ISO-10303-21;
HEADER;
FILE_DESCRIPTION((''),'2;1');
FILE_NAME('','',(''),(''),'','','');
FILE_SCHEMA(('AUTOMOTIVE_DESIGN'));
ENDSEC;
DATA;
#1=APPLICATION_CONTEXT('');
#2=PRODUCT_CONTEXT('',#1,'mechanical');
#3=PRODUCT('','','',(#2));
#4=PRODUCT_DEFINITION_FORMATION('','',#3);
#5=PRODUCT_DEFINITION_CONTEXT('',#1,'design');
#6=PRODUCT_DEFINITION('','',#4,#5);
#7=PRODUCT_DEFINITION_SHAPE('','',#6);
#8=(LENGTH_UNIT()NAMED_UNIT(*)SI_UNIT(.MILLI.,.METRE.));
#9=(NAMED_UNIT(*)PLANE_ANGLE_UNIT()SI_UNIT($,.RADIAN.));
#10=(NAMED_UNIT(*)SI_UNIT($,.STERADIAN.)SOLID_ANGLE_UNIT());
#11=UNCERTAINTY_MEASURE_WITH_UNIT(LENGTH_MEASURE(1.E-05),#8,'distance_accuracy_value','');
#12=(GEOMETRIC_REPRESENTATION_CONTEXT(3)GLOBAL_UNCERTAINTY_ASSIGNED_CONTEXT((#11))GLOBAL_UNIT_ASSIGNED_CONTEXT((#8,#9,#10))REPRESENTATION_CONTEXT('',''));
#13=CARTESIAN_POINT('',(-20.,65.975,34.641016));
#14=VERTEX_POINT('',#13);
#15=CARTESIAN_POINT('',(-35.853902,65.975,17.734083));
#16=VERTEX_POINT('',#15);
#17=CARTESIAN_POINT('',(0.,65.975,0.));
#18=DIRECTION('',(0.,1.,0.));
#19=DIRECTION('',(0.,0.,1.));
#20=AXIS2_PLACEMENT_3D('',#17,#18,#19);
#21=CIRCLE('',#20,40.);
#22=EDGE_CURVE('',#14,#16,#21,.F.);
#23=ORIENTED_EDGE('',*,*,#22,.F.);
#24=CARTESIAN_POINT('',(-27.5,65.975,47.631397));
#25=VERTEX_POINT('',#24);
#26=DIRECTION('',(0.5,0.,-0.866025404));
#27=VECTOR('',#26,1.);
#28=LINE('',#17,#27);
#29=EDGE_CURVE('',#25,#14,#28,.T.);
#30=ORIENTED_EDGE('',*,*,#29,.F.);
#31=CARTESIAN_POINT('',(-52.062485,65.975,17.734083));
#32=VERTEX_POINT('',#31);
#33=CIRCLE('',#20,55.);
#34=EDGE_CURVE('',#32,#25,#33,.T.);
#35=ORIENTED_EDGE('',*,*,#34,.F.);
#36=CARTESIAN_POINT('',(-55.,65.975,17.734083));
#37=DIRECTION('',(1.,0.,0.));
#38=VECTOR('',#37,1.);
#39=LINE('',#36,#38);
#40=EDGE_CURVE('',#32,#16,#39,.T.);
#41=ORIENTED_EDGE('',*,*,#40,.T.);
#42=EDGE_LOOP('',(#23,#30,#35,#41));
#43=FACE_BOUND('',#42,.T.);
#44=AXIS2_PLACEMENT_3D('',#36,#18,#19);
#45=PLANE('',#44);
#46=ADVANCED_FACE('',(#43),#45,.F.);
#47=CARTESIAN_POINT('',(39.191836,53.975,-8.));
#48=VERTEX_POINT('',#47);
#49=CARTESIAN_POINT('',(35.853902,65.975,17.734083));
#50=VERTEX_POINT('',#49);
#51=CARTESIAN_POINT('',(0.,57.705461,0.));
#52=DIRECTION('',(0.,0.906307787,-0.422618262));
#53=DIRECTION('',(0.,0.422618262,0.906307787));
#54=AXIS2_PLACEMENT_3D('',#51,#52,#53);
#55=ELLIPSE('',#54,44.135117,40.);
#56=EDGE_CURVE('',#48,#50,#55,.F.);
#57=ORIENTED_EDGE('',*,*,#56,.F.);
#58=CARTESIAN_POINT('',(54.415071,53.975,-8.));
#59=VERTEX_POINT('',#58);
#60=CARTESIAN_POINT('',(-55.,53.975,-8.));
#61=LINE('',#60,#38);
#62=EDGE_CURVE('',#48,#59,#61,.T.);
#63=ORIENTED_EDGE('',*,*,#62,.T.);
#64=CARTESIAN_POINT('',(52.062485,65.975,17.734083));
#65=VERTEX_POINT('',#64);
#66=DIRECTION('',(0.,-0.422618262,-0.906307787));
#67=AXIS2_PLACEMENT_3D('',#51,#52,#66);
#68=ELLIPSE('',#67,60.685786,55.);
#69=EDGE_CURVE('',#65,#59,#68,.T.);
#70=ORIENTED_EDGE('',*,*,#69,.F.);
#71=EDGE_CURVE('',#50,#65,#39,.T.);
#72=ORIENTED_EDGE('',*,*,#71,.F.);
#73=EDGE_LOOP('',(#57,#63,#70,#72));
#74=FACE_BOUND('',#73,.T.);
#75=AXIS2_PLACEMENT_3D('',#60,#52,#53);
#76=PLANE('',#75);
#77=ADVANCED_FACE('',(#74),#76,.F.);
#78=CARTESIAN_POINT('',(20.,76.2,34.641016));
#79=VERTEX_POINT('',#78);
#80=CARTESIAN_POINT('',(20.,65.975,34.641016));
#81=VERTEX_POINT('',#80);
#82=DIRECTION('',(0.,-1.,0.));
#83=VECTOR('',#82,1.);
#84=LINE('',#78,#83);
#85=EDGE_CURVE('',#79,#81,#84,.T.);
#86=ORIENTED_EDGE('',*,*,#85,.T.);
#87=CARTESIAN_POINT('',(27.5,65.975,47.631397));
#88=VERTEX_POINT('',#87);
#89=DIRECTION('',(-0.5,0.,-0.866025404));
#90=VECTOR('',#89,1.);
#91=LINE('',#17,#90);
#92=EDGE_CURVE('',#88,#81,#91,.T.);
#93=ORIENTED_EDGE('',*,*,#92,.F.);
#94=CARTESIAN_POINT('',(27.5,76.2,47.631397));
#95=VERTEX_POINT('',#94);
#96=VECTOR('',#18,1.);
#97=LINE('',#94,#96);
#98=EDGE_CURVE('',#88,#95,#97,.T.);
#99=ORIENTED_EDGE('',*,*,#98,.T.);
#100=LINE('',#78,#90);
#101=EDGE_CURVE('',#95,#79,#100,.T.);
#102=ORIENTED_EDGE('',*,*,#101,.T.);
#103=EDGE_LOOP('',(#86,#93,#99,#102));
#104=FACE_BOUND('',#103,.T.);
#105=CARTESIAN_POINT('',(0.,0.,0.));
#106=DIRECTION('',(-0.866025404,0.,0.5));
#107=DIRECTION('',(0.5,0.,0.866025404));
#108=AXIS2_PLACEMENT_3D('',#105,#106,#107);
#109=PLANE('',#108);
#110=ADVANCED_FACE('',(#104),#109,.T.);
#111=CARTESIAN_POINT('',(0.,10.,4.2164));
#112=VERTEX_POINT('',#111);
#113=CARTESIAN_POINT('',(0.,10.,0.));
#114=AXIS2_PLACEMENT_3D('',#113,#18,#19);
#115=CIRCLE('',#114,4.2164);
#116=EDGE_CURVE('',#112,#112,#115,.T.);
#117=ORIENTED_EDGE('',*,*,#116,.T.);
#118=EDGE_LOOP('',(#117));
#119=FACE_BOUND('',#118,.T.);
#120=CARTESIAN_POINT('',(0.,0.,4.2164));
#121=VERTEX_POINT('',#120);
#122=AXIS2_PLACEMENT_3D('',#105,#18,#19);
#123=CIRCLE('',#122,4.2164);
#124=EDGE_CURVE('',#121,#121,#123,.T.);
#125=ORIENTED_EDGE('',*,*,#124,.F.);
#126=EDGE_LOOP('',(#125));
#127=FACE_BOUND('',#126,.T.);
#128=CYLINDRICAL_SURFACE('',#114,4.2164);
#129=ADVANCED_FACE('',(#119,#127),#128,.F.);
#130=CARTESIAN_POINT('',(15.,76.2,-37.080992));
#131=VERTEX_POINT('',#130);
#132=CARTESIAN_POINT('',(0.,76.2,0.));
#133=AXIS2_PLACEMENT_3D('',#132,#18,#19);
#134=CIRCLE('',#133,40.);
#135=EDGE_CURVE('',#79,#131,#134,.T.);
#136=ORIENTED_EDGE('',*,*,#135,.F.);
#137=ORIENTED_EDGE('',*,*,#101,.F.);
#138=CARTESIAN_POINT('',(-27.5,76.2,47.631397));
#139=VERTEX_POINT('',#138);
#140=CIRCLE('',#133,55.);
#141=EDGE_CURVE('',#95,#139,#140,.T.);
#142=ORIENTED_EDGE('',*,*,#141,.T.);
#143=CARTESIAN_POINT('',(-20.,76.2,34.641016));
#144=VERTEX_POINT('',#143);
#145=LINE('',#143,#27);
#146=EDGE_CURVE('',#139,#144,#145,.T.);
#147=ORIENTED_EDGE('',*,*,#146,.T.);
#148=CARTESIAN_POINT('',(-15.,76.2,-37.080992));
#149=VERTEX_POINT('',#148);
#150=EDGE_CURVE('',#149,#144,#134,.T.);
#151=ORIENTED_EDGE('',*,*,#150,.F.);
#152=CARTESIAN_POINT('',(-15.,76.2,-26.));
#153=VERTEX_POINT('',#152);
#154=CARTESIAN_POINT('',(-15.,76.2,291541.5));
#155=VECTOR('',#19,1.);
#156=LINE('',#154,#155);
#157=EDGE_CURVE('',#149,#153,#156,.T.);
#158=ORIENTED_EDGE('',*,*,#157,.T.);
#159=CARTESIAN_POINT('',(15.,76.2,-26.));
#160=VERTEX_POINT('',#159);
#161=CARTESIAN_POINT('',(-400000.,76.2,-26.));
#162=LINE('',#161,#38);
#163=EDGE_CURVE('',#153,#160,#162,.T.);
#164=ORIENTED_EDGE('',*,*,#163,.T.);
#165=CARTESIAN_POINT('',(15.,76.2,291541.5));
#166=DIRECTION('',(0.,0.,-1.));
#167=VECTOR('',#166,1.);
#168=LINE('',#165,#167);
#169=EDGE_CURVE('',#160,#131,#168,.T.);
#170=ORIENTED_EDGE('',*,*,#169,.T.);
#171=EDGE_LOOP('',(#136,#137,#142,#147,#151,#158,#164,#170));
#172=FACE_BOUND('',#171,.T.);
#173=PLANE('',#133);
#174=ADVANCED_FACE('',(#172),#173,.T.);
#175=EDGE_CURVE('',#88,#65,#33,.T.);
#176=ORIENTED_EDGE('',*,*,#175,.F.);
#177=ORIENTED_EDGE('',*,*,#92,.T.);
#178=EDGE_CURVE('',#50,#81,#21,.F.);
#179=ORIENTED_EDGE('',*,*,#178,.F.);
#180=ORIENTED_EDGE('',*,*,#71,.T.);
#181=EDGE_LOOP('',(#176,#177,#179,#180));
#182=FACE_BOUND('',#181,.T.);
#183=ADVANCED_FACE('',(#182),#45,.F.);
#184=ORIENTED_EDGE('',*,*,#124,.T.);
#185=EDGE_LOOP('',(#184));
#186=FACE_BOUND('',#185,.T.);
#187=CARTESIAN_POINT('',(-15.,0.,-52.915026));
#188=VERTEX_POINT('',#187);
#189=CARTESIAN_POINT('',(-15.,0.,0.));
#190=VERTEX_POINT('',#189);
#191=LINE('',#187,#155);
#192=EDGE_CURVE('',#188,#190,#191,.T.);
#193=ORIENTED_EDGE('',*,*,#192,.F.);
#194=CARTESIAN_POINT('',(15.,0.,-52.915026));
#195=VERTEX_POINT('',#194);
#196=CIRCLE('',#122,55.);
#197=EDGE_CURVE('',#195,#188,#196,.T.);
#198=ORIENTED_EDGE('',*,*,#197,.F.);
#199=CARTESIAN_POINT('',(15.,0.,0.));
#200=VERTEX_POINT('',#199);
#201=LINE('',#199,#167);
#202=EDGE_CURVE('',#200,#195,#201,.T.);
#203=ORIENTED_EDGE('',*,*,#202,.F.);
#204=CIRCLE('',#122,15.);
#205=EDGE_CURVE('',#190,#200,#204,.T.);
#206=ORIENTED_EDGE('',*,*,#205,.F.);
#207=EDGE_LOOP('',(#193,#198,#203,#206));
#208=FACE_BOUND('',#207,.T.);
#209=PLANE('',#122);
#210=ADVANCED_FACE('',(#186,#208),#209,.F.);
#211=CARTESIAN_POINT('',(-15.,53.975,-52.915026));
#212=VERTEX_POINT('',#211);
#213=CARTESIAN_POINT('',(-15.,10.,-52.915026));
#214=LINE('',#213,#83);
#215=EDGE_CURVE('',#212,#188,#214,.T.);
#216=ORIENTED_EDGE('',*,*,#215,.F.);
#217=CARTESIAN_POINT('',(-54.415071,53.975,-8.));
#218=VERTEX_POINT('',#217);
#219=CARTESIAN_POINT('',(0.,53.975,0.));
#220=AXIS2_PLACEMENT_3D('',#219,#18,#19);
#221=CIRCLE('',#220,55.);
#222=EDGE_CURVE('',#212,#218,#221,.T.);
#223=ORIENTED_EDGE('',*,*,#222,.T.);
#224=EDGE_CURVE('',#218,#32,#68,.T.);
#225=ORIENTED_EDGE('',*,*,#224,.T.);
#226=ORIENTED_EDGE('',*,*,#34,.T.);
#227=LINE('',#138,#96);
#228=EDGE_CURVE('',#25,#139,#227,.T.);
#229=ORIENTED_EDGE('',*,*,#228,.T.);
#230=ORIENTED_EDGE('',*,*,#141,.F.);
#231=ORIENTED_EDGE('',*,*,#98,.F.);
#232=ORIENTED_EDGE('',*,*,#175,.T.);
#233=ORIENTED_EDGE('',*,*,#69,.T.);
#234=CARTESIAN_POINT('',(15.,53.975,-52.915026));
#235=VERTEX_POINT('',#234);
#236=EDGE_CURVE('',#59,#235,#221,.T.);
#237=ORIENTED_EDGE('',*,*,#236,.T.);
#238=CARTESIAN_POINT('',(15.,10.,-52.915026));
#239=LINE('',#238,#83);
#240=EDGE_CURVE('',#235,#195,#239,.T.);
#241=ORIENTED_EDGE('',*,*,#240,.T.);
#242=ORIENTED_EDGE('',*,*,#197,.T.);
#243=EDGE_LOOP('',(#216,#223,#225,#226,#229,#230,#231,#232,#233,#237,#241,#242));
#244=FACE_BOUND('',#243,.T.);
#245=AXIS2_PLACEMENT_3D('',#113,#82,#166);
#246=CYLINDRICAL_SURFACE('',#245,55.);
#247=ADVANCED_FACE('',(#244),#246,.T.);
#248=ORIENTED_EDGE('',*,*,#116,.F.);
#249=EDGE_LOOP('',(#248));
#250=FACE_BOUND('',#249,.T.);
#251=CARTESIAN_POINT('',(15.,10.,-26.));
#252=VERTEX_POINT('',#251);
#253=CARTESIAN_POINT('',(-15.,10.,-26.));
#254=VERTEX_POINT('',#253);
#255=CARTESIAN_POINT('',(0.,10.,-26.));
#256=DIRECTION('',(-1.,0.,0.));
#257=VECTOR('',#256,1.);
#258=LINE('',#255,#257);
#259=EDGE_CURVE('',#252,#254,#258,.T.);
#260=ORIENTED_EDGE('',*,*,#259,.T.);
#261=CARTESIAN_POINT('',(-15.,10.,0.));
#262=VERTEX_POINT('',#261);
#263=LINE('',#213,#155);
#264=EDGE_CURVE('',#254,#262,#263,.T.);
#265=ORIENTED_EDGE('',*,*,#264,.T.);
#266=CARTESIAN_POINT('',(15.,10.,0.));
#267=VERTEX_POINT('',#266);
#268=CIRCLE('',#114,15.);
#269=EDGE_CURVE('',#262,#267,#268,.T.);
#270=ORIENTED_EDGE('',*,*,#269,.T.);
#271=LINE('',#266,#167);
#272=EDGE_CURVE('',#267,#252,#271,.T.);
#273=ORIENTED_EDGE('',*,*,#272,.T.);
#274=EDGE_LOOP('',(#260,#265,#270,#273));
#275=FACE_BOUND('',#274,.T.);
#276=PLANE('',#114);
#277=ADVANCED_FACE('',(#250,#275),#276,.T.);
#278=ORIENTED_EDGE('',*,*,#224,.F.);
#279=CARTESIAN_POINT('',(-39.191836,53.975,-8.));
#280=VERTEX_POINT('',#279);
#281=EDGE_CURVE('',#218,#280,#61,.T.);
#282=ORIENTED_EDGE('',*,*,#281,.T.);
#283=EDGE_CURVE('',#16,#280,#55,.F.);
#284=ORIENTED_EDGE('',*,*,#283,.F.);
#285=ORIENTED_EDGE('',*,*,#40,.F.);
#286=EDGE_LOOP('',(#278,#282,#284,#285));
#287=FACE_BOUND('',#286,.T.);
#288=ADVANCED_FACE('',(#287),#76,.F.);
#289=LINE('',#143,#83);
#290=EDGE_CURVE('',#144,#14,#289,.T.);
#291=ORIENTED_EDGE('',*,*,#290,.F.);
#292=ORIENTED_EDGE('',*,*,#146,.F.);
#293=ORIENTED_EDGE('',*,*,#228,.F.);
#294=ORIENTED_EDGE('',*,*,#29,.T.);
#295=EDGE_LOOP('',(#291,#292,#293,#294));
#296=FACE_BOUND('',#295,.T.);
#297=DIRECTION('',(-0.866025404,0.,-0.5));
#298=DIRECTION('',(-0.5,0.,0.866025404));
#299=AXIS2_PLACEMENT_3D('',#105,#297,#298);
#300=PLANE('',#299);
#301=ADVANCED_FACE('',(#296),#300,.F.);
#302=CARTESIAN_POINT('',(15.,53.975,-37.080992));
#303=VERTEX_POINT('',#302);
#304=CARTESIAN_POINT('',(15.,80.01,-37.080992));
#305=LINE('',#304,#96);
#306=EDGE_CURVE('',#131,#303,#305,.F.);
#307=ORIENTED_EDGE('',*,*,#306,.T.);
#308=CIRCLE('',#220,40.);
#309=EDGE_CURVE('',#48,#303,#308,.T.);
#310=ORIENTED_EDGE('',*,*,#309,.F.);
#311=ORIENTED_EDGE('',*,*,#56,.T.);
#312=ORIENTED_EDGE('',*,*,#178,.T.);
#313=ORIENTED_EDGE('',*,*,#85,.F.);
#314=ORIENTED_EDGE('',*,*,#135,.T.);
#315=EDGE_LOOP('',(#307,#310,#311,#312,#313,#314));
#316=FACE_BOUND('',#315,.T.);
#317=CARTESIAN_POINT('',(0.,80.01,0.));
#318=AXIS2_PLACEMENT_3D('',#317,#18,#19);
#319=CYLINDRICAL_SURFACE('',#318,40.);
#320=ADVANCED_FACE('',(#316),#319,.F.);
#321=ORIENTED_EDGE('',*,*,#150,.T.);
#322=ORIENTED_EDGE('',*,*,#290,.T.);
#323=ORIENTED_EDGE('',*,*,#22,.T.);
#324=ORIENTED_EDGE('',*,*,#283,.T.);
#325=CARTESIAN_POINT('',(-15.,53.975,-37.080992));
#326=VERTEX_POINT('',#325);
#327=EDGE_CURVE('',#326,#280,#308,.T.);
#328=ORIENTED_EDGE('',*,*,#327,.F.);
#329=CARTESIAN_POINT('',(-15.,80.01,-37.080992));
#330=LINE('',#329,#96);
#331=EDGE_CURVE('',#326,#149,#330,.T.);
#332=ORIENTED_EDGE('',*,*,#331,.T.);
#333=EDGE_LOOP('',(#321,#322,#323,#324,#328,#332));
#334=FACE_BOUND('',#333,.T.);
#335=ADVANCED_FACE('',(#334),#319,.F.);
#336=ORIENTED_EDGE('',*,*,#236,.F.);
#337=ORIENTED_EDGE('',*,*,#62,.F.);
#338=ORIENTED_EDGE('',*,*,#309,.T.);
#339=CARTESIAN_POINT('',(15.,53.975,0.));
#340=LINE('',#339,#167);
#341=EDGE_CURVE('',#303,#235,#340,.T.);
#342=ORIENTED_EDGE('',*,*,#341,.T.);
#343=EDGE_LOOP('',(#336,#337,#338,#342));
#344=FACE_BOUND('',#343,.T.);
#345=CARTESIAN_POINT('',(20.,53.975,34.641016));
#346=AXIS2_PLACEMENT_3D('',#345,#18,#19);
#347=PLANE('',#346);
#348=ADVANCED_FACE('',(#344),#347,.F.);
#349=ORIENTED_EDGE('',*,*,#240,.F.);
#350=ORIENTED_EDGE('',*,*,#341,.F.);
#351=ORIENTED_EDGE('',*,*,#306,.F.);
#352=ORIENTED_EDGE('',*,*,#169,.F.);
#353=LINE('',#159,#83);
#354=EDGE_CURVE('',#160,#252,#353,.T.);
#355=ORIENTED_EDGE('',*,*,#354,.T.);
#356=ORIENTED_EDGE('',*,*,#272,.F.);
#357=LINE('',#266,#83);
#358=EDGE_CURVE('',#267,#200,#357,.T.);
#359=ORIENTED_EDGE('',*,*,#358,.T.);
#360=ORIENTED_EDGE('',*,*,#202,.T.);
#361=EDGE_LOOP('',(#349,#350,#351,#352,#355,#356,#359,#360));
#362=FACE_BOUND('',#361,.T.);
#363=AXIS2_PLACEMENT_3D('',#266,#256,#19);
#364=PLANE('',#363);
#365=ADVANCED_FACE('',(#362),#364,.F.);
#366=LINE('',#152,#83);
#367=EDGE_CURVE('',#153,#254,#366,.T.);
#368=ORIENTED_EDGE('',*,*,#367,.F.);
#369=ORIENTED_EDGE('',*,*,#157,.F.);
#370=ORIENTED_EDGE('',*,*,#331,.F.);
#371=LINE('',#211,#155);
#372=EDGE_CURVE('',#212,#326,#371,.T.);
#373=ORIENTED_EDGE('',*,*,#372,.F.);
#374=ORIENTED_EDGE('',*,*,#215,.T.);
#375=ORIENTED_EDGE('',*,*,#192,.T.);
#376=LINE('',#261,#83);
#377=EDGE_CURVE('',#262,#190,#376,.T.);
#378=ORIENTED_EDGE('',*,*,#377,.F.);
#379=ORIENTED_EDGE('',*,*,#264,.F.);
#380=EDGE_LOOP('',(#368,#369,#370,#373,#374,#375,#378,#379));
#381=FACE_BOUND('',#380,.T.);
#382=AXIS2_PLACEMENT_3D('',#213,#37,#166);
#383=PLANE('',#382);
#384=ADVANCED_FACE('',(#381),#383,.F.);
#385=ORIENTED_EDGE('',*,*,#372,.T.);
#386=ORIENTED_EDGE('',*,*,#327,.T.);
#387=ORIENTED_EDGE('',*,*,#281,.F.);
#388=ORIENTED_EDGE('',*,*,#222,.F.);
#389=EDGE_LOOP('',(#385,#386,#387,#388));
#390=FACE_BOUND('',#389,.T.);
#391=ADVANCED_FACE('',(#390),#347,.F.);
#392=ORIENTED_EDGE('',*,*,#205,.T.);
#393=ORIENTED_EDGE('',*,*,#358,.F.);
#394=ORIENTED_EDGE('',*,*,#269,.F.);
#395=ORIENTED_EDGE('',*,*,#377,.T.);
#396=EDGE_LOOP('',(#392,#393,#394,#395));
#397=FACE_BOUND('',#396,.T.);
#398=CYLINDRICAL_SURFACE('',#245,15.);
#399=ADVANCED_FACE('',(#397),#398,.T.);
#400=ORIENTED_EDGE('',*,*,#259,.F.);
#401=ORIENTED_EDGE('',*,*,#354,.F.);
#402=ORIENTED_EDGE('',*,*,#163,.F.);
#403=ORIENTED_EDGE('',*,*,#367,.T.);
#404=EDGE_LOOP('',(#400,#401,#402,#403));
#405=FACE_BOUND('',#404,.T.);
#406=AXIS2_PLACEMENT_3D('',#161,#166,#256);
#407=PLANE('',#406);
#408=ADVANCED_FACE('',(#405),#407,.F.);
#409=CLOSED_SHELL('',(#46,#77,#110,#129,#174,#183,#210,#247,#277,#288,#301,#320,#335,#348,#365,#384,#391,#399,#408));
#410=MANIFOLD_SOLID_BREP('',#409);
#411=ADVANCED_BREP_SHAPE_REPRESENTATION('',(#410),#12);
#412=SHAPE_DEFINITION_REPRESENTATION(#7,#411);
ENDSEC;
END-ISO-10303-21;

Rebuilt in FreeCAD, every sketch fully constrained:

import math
import FreeCAD as App
import Part
import Sketcher
Q = App.Units.Quantity


def add_polygon(sketch, points):
    """Adds a closed chain of lines whose ends are joined by coincident constraints."""
    first, n = sketch.GeometryCount, len(points)
    for a, b in zip(points, points[1:] + points[:1]):
        sketch.addGeometry(Part.LineSegment(App.Vector(*a, 0), App.Vector(*b, 0)), False)
    for i in range(n):
        sketch.addConstraint(Sketcher.Constraint("Coincident", first + i, 2, first + (i + 1) % n, 1))

doc = App.newDocument("Part")
body = doc.addObject("PartDesign::Body", "Body")

sketch1 = doc.addObject("Sketcher::SketchObject", "Sketch")
body.addObject(sketch1)
sketch1.AttachmentSupport = (doc.XZ_Plane, [""])
sketch1.MapMode = "FlatFace"
sketch1.addGeometry([
    Part.LineSegment(App.Vector(15, 0, 0), App.Vector(15, -53, 0)),
    Part.ArcOfCircle(Part.Circle(App.Vector(0, 0, 0), App.Vector(0, 0, 1), 55), math.radians(-106), math.radians(-74)),
    Part.LineSegment(App.Vector(-15, -53, 0), App.Vector(-15, 0, 0)),
    Part.ArcOfCircle(Part.Circle(App.Vector(0, 0, 0), App.Vector(0, 0, 1), 15), math.radians(0), math.radians(180)),
], False)
sketch1.addConstraint([
    Sketcher.Constraint("Coincident", 0, 2, 1, 2),
    Sketcher.Constraint("Coincident", 1, 1, 2, 1),
    Sketcher.Constraint("Tangent", 2, 2, 3, 2),
    Sketcher.Constraint("Tangent", 3, 1, 0, 1),
    Sketcher.Constraint("Vertical", 0),
    Sketcher.Constraint("Vertical", 2),
    Sketcher.Constraint("Coincident", 1, 3, -1, 1),
    Sketcher.Constraint("Coincident", 3, 3, -1, 1),
    Sketcher.Constraint("Radius", 1, Q("55 mm")),
    Sketcher.Constraint("Radius", 3, Q("15 mm")),
])
pad1 = doc.addObject("PartDesign::Pad", "Pad")
body.addObject(pad1)
pad1.Profile = sketch1
pad1.Length = 10
pad1.Reversed = True

sketch2 = doc.addObject("Sketcher::SketchObject", "Sketch001")
body.addObject(sketch2)
sketch2.AttachmentSupport = (doc.XZ_Plane, [""])
sketch2.MapMode = "FlatFace"
sketch2.addGeometry([
    Part.LineSegment(App.Vector(-15, -26, 0), App.Vector(15, -26, 0)),
    Part.LineSegment(App.Vector(15, -26, 0), App.Vector(15, -53, 0)),
    Part.ArcOfCircle(Part.Circle(App.Vector(0, 0, 0), App.Vector(0, 0, 1), 55), math.radians(-106), math.radians(-74)),
    Part.LineSegment(App.Vector(-15, -53, 0), App.Vector(-15, -26, 0)),
], False)
sketch2.addConstraint([
    Sketcher.Constraint("Coincident", 0, 2, 1, 1),
    Sketcher.Constraint("Coincident", 1, 2, 2, 2),
    Sketcher.Constraint("Coincident", 2, 1, 3, 1),
    Sketcher.Constraint("Coincident", 3, 2, 0, 1),
    Sketcher.Constraint("Horizontal", 0),
    Sketcher.Constraint("Vertical", 1),
    Sketcher.Constraint("Vertical", 3),
    Sketcher.Constraint("Coincident", 2, 3, -1, 1),
    Sketcher.Constraint("Horizontal", 1, 2, 2, 1),
    Sketcher.Constraint("Radius", 2, Q("55 mm")),
    Sketcher.Constraint("DistanceX", 0, 1, 0, 2, Q("30 mm")),
    Sketcher.Constraint("DistanceY", 0, 2, -1, 1, Q("26 mm")),
])
pad2 = doc.addObject("PartDesign::Pad", "Pad001")
body.addObject(pad2)
pad2.Profile = sketch2
pad2.Length = 76.2
pad2.Reversed = True

sketch3 = doc.addObject("Sketcher::SketchObject", "Sketch002")
body.addObject(sketch3)
sketch3.AttachmentSupport = (doc.YZ_Plane, [""])
sketch3.MapMode = "FlatFace"
add_polygon(sketch3, [(76, -40), (54, -40), (54, -55), (76, -55)])
sketch3.addConstraint([
    Sketcher.Constraint("Horizontal", 0),
    Sketcher.Constraint("Vertical", 1),
    Sketcher.Constraint("Horizontal", 2),
    Sketcher.Constraint("Vertical", 3),
    Sketcher.Constraint("DistanceY", 1, 2, 1, 1, Q("15 mm")),
    Sketcher.Constraint("DistanceY", 0, 2, -1, 1, Q("40 mm")),
    Sketcher.Constraint("DistanceX", -1, 1, 2, 2, Q("76.2 mm")),
    Sketcher.Constraint("DistanceX", 0, 2, 0, 1, Q("22.225 mm")),
])
revolution = doc.addObject("PartDesign::Revolution", "Revolution")
body.addObject(revolution)
revolution.Profile = sketch3
revolution.ReferenceAxis = (sketch3, ["H_Axis"])
revolution.Angle = 150
revolution.Reversed = True

sketch4 = doc.addObject("Sketcher::SketchObject", "Sketch003")
body.addObject(sketch4)
sketch4.AttachmentSupport = (doc.YZ_Plane, [""])
sketch4.MapMode = "FlatFace"
add_polygon(sketch4, [(76, -40), (54, -40), (54, -55), (76, -55)])
sketch4.addConstraint([
    Sketcher.Constraint("Horizontal", 0),
    Sketcher.Constraint("Vertical", 1),
    Sketcher.Constraint("Horizontal", 2),
    Sketcher.Constraint("Vertical", 3),
    Sketcher.Constraint("DistanceY", 1, 2, 1, 1, Q("15 mm")),
    Sketcher.Constraint("DistanceY", 0, 2, -1, 1, Q("40 mm")),
    Sketcher.Constraint("DistanceX", -1, 1, 2, 2, Q("76.2 mm")),
    Sketcher.Constraint("DistanceX", 0, 2, 0, 1, Q("22.225 mm")),
])
revolution2 = doc.addObject("PartDesign::Revolution", "Revolution001")
body.addObject(revolution2)
revolution2.Profile = sketch4
revolution2.ReferenceAxis = (sketch4, ["H_Axis"])
revolution2.Angle = 150

sketch5 = doc.addObject("Sketcher::SketchObject", "Sketch004")
body.addObject(sketch5)
sketch5.AttachmentSupport = (doc.YZ_Plane, [""])
sketch5.MapMode = "FlatFace"
add_polygon(sketch5, [(54, -8), (66, 18), (66, 48), (54, 48)])
sketch5.addConstraint([
    Sketcher.Constraint("Vertical", 1),
    Sketcher.Constraint("Horizontal", 2),
    Sketcher.Constraint("Vertical", 3),
    Sketcher.Constraint("DistanceX", 2, 2, 2, 1, Q("12 mm")),
    Sketcher.Constraint("Angle", 0, Q("65 deg")),
    Sketcher.Constraint("DistanceY", 3, 2, -1, 1, Q("8 mm")),
    Sketcher.Constraint("DistanceX", -1, 1, 0, 2, Q("65.975 mm")),
    Sketcher.Constraint("DistanceY", 1, 1, 1, 2, Q("29.897314 mm")),
])
pocket1 = doc.addObject("PartDesign::Pocket", "Pocket")
body.addObject(pocket1)
pocket1.Profile = sketch5
pocket1.Type = "ThroughAll"
pocket1.Midplane = True

sketch6 = doc.addObject("Sketcher::SketchObject", "Sketch005")
body.addObject(sketch6)
sketch6.AttachmentSupport = (doc.XZ_Plane, [""])
sketch6.MapMode = "FlatFace"
sketch6.AttachmentOffset = App.Placement(App.Vector(0, 0, -10), App.Rotation())
sketch6.addGeometry(Part.Circle(App.Vector(0, 0, 0), App.Vector(0, 0, 1), 4.2), False)
sketch6.addConstraint([
    Sketcher.Constraint("Coincident", 0, 3, -1, 1),
    Sketcher.Constraint("Diameter", 0, Q("8.4328 mm")),
])
doc.recompute()
hole = doc.addObject("PartDesign::Hole", "Hole")
body.addObject(hole)
hole.Profile = sketch6
hole.ThreadType = "None"
hole.Diameter = 8.4328
hole.DepthType = "ThroughAll"
hole.Reversed = True

doc.recompute()
